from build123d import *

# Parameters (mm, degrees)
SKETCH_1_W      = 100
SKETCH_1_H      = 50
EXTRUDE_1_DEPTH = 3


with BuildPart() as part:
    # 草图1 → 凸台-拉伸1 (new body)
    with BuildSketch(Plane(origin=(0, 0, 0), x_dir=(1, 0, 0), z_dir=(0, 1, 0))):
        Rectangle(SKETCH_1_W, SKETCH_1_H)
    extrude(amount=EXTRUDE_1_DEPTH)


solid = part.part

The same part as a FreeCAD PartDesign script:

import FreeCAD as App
import Part
import Sketcher

V = App.Vector
Q = App.Units.Quantity

doc = App.newDocument("Part")
body = doc.addObject("PartDesign::Body", "Body")

sketch1 = doc.addObject("Sketcher::SketchObject", "Sketch")
body.addObject(sketch1)
sketch1.AttachmentSupport = (doc.XZ_Plane, [""])
sketch1.MapMode = "FlatFace"
sketch1.addGeometry([
    Part.LineSegment(V(-50, -25, 0), V(-50, 25, 0)),
    Part.LineSegment(V(-50, 25, 0), V(50, 25, 0)),
    Part.LineSegment(V(50, 25, 0), V(50, -25, 0)),
    Part.LineSegment(V(50, -25, 0), V(-50, -25, 0)),
], False)
sketch1.addConstraint([
    Sketcher.Constraint("Coincident", 0, 2, 1, 1),
    Sketcher.Constraint("Coincident", 1, 2, 2, 1),
    Sketcher.Constraint("Coincident", 2, 2, 3, 1),
    Sketcher.Constraint("Coincident", 3, 2, 0, 1),
    Sketcher.Constraint("Vertical", 0),
    Sketcher.Constraint("Horizontal", 1),
    Sketcher.Constraint("Vertical", 2),
    Sketcher.Constraint("Horizontal", 3),
    Sketcher.Constraint("Symmetric", 0, 2, 2, 2, -1, 1),
    Sketcher.Constraint("DistanceX", 1, 1, 1, 2, Q("100 mm")),
    Sketcher.Constraint("DistanceY", 0, 1, 0, 2, Q("50 mm")),
])
pad1 = doc.addObject("PartDesign::Pad", "Pad")
body.addObject(pad1)
pad1.Profile = sketch1
pad1.Length = 3
pad1.Reversed = True

doc.recompute()
